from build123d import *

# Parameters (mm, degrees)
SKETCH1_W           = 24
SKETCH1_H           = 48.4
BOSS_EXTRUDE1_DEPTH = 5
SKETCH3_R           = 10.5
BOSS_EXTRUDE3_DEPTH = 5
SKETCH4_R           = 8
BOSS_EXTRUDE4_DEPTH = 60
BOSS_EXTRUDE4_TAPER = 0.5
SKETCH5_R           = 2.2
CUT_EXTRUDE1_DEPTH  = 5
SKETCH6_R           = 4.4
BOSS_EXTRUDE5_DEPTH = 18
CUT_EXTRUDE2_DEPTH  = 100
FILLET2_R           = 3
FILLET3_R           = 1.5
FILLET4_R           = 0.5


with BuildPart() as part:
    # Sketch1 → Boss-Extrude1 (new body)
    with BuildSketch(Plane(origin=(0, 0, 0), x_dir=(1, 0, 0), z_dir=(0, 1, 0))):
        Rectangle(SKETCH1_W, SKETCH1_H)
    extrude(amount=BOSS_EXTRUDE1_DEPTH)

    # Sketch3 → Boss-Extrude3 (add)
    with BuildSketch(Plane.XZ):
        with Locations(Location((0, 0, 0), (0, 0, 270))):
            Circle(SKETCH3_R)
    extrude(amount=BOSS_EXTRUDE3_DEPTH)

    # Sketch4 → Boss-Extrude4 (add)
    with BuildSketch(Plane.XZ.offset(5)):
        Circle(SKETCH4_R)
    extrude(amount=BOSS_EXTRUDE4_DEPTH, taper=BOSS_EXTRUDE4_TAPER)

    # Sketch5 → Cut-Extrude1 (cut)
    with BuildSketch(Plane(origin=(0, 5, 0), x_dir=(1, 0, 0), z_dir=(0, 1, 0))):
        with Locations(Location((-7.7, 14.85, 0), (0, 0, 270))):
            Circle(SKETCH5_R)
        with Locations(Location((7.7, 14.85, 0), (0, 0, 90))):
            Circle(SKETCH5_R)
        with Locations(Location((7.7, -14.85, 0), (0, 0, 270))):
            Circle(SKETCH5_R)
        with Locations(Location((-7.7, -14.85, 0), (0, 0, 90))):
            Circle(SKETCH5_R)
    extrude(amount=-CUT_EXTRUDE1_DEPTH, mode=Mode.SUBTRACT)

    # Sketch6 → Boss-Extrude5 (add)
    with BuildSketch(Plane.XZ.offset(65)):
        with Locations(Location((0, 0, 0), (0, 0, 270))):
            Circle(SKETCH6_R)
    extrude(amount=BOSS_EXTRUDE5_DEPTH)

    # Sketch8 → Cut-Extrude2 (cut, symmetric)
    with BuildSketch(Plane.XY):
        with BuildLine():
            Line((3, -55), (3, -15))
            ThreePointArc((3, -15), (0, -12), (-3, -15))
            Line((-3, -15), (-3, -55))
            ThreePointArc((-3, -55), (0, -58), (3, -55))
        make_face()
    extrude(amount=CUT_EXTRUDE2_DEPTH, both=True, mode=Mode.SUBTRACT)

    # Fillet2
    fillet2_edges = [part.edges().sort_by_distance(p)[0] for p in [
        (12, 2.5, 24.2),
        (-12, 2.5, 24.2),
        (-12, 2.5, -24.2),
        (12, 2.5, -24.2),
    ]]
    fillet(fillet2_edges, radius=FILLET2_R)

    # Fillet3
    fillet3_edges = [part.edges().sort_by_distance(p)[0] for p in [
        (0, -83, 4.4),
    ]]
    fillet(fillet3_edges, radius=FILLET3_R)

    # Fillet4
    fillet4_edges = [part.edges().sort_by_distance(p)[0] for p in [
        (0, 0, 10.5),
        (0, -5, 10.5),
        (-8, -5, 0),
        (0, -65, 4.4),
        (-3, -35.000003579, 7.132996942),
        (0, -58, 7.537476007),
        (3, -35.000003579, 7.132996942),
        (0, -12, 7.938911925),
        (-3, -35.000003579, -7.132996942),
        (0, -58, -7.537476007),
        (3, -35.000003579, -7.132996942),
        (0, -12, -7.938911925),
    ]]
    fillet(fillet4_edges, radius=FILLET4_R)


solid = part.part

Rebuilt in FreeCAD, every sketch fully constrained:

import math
import FreeCAD as App
import Part
import Sketcher
from FreeCAD import Vector


def edges_at(feature, points):
    """Names of the edges that pass closest to the given points."""
    edges = feature.Shape.Edges
    near = lambda p: min(range(len(edges)), key=lambda i: edges[i].distToShape(Part.Vertex(*p))[0])
    return sorted({f"Edge{near(p) + 1}" for p in points})


def add_polygon(sketch, points):
    """Adds a closed chain of lines whose ends are joined by coincident constraints."""
    first, n = sketch.GeometryCount, len(points)
    for a, b in zip(points, points[1:] + points[:1]):
        sketch.addGeometry(Part.LineSegment(App.Vector(*a, 0), App.Vector(*b, 0)), False)
    for i in range(n):
        sketch.addConstraint(Sketcher.Constraint("Coincident", first + i, 2, first + (i + 1) % n, 1))

doc = App.newDocument("Part")
params = doc.addObject("Spreadsheet::Sheet", "Params")
for row, (alias, value) in enumerate([
    ("sketch1_width", "24 mm"),
    ("sketch1_height", "48.4 mm"),
    ("pad1_length", "5 mm"),
    ("sketch2_diameter", "21 mm"),
    ("pad2_length", "5 mm"),
    ("sketch3_diameter", "16 mm"),
    ("pad3_length", "60 mm"),
    ("pad3_taper", "-0.5 deg"),
    ("sketch4_diameter", "4.4 mm"),
    ("pocket1_length", "5 mm"),
    ("sketch5_diameter", "8.8 mm"),
    ("pad4_length", "18 mm"),
    ("sketch6_radius", "3 mm"),
    ("sketch6_height", "40 mm"),
    ("pocket2_length", "200 mm"),
    ("fillet_radius", "3 mm"),
    ("fillet2_radius", "1.5 mm"),
    ("fillet3_radius", "0.5 mm"),
], start=1):
    params.set(f"A{row}", alias)
    params.set(f"B{row}", "=" + value)
    params.setAlias(f"B{row}", alias)

body = doc.addObject("PartDesign::Body", "Body")

# Sketch on XZ plane
sketch1 = doc.addObject("Sketcher::SketchObject", "Sketch")
body.addObject(sketch1)
sketch1.AttachmentSupport = (doc.XZ_Plane, [""])
sketch1.MapMode = "FlatFace"
add_polygon(sketch1, [(-12, -24), (-12, 24), (12, 24), (12, -24)])  # lines 0-3
sketch1.addConstraint([
    Sketcher.Constraint("Vertical", 0),
    Sketcher.Constraint("Horizontal", 1),
    Sketcher.Constraint("Vertical", 2),
    Sketcher.Constraint("Horizontal", 3),
    Sketcher.Constraint("Symmetric", 0, 2, 2, 2, -1, 1),
    Sketcher.Constraint("DistanceX", 1, 1, 1, 2, 24.0),
    Sketcher.Constraint("DistanceY", 0, 1, 0, 2, 48.4),
])
sketch1.setExpression("Constraints[9]", "Params.sketch1_width")
sketch1.setExpression("Constraints[10]", "Params.sketch1_height")
pad1 = doc.addObject("PartDesign::Pad", "Pad")
body.addObject(pad1)
pad1.Profile = sketch1
pad1.setExpression("Length", "Params.pad1_length")
pad1.Reversed = True

# Sketch on XZ plane
sketch2 = doc.addObject("Sketcher::SketchObject", "Sketch001")
body.addObject(sketch2)
sketch2.AttachmentSupport = (doc.XZ_Plane, [""])
sketch2.MapMode = "FlatFace"
sketch2.addGeometry(Part.Circle(Vector(0, 0, 0), Vector(0, 0, 1), 10), False)
sketch2.addConstraint([
    Sketcher.Constraint("Coincident", 0, 3, -1, 1),
    Sketcher.Constraint("Diameter", 0, 21.0),
])
sketch2.setExpression("Constraints[1]", "Params.sketch2_diameter")
pad2 = doc.addObject("PartDesign::Pad", "Pad001")
body.addObject(pad2)
pad2.Profile = sketch2
pad2.setExpression("Length", "Params.pad2_length")

# Sketch on XZ plane
sketch3 = doc.addObject("Sketcher::SketchObject", "Sketch002")
body.addObject(sketch3)
sketch3.AttachmentSupport = (doc.XZ_Plane, [""])
sketch3.MapMode = "FlatFace"
sketch3.AttachmentOffset = App.Placement(Vector(0, 0, 5), App.Rotation())
sketch3.addGeometry(Part.Circle(Vector(0, 0, 0), Vector(0, 0, 1), 8), False)
sketch3.addConstraint([
    Sketcher.Constraint("Coincident", 0, 3, -1, 1),
    Sketcher.Constraint("Diameter", 0, 16.0),
])
sketch3.setExpression("Constraints[1]", "Params.sketch3_diameter")
pad3 = doc.addObject("PartDesign::Pad", "Pad002")
body.addObject(pad3)
pad3.Profile = sketch3
pad3.setExpression("Length", "Params.pad3_length")
pad3.setExpression("TaperAngle", "Params.pad3_taper")

# Sketch on XZ plane
sketch4 = doc.addObject("Sketcher::SketchObject", "Sketch003")
body.addObject(sketch4)
sketch4.AttachmentSupport = (doc.XZ_Plane, [""])
sketch4.MapMode = "FlatFace"
sketch4.AttachmentOffset = App.Placement(Vector(0, 0, -5), App.Rotation())
sketch4.addGeometry([
    Part.Circle(Vector(-7.7, -14.8, 0), Vector(0, 0, 1), 2.2),
    Part.Circle(Vector(7.7, -14.8, 0), Vector(0, 0, 1), 2.2),
    Part.Circle(Vector(7.7, 14.8, 0), Vector(0, 0, 1), 2.2),
    Part.Circle(Vector(-7.7, 14.8, 0), Vector(0, 0, 1), 2.2),
], False)
sketch4.addConstraint([
    Sketcher.Constraint("Equal", 0, 1),
    Sketcher.Constraint("Equal", 1, 2),
    Sketcher.Constraint("Equal", 2, 3),
    Sketcher.Constraint("Symmetric", 0, 3, 2, 3, -1, 1),
    Sketcher.Constraint("Symmetric", 1, 3, 3, 3, -1, 1),
    Sketcher.Constraint("Symmetric", 0, 3, 1, 3, -2),
    Sketcher.Constraint("Diameter", 0, 4.4),
    Sketcher.Constraint("DistanceX", 0, 3, -1, 1, 7.7),
    Sketcher.Constraint("DistanceY", 1, 3, 2, 3, 29.7),
])
sketch4.setExpression("Constraints[6]", "Params.sketch4_diameter")
pocket1 = doc.addObject("PartDesign::Pocket", "Pocket")
body.addObject(pocket1)
pocket1.Profile = sketch4
pocket1.setExpression("Length", "Params.pocket1_length")
pocket1.Reversed = True

# Sketch on XZ plane
sketch5 = doc.addObject("Sketcher::SketchObject", "Sketch004")
body.addObject(sketch5)
sketch5.AttachmentSupport = (doc.XZ_Plane, [""])
sketch5.MapMode = "FlatFace"
sketch5.AttachmentOffset = App.Placement(Vector(0, 0, 65), App.Rotation())
sketch5.addGeometry(Part.Circle(Vector(0, 0, 0), Vector(0, 0, 1), 4.4), False)
sketch5.addConstraint([
    Sketcher.Constraint("Coincident", 0, 3, -1, 1),
    Sketcher.Constraint("Diameter", 0, 8.8),
])
sketch5.setExpression("Constraints[1]", "Params.sketch5_diameter")
pad4 = doc.addObject("PartDesign::Pad", "Pad003")
body.addObject(pad4)
pad4.Profile = sketch5
pad4.setExpression("Length", "Params.pad4_length")

# Sketch on XY plane
sketch6 = doc.addObject("Sketcher::SketchObject", "Sketch005")
body.addObject(sketch6)
sketch6.AttachmentSupport = (doc.XY_Plane, [""])
sketch6.MapMode = "FlatFace"
sketch6.addGeometry([
    Part.LineSegment(Vector(3, -55, 0), Vector(3, -15, 0)),
    Part.ArcOfCircle(Part.Circle(Vector(0, -15, 0), Vector(0, 0, 1), 3), math.radians(0), math.radians(180)),
    Part.LineSegment(Vector(-3, -15, 0), Vector(-3, -55, 0)),
    Part.ArcOfCircle(Part.Circle(Vector(0, -55, 0), Vector(0, 0, 1), 3), math.radians(180), math.radians(360)),
], False)
sketch6.addConstraint([
    Sketcher.Constraint("Tangent", 0, 2, 1, 1),
    Sketcher.Constraint("Tangent", 1, 2, 2, 1),
    Sketcher.Constraint("Tangent", 2, 2, 3, 1),
    Sketcher.Constraint("Tangent", 3, 2, 0, 1),
    Sketcher.Constraint("Vertical", 0),
    Sketcher.Constraint("Vertical", 2),
    Sketcher.Constraint("PointOnObject", 1, 3, -2),
    Sketcher.Constraint("Radius", 1, 3.0),
    Sketcher.Constraint("DistanceY", 0, 1, 0, 2, 40.0),
    Sketcher.Constraint("DistanceY", 1, 3, -1, 1, 15.0),
])
sketch6.setExpression("Constraints[7]", "Params.sketch6_radius")
sketch6.setExpression("Constraints[8]", "Params.sketch6_height")
pocket2 = doc.addObject("PartDesign::Pocket", "Pocket001")
body.addObject(pocket2)
pocket2.Profile = sketch6
pocket2.setExpression("Length", "Params.pocket2_length")
pocket2.Midplane = True
doc.recompute()

fillet = doc.addObject("PartDesign::Fillet", "Fillet")
body.addObject(fillet)
fillet.Base = (pocket2, edges_at(pocket2, [
    (12, 2.5, 24.2),
    (-12, 2.5, 24.2),
    (-12, 2.5, -24.2),
    (12, 2.5, -24.2),
]))
fillet.setExpression("Radius", "Params.fillet_radius")
doc.recompute()

fillet2 = doc.addObject("PartDesign::Fillet", "Fillet001")
body.addObject(fillet2)
fillet2.Base = (fillet, edges_at(fillet, [(0, -83, 4.4)]))
fillet2.setExpression("Radius", "Params.fillet2_radius")
doc.recompute()

fillet3 = doc.addObject("PartDesign::Fillet", "Fillet002")
body.addObject(fillet3)
fillet3.Base = (fillet2, edges_at(fillet2, [
    (0, 0, 10.5),
    (0, -5, 10.5),
    (-8, -5, 0),
    (0, -65, 4.4),
    (-3, -35, 7.133),
    (0, -58, 7.537),
    (3, -35, 7.133),
    (0, -12, 7.939),
    (-3, -35, -7.133),
    (0, -58, -7.537),
    (3, -35, -7.133),
    (0, -12, -7.939),
]))
fillet3.setExpression("Radius", "Params.fillet3_radius")

doc.recompute()
